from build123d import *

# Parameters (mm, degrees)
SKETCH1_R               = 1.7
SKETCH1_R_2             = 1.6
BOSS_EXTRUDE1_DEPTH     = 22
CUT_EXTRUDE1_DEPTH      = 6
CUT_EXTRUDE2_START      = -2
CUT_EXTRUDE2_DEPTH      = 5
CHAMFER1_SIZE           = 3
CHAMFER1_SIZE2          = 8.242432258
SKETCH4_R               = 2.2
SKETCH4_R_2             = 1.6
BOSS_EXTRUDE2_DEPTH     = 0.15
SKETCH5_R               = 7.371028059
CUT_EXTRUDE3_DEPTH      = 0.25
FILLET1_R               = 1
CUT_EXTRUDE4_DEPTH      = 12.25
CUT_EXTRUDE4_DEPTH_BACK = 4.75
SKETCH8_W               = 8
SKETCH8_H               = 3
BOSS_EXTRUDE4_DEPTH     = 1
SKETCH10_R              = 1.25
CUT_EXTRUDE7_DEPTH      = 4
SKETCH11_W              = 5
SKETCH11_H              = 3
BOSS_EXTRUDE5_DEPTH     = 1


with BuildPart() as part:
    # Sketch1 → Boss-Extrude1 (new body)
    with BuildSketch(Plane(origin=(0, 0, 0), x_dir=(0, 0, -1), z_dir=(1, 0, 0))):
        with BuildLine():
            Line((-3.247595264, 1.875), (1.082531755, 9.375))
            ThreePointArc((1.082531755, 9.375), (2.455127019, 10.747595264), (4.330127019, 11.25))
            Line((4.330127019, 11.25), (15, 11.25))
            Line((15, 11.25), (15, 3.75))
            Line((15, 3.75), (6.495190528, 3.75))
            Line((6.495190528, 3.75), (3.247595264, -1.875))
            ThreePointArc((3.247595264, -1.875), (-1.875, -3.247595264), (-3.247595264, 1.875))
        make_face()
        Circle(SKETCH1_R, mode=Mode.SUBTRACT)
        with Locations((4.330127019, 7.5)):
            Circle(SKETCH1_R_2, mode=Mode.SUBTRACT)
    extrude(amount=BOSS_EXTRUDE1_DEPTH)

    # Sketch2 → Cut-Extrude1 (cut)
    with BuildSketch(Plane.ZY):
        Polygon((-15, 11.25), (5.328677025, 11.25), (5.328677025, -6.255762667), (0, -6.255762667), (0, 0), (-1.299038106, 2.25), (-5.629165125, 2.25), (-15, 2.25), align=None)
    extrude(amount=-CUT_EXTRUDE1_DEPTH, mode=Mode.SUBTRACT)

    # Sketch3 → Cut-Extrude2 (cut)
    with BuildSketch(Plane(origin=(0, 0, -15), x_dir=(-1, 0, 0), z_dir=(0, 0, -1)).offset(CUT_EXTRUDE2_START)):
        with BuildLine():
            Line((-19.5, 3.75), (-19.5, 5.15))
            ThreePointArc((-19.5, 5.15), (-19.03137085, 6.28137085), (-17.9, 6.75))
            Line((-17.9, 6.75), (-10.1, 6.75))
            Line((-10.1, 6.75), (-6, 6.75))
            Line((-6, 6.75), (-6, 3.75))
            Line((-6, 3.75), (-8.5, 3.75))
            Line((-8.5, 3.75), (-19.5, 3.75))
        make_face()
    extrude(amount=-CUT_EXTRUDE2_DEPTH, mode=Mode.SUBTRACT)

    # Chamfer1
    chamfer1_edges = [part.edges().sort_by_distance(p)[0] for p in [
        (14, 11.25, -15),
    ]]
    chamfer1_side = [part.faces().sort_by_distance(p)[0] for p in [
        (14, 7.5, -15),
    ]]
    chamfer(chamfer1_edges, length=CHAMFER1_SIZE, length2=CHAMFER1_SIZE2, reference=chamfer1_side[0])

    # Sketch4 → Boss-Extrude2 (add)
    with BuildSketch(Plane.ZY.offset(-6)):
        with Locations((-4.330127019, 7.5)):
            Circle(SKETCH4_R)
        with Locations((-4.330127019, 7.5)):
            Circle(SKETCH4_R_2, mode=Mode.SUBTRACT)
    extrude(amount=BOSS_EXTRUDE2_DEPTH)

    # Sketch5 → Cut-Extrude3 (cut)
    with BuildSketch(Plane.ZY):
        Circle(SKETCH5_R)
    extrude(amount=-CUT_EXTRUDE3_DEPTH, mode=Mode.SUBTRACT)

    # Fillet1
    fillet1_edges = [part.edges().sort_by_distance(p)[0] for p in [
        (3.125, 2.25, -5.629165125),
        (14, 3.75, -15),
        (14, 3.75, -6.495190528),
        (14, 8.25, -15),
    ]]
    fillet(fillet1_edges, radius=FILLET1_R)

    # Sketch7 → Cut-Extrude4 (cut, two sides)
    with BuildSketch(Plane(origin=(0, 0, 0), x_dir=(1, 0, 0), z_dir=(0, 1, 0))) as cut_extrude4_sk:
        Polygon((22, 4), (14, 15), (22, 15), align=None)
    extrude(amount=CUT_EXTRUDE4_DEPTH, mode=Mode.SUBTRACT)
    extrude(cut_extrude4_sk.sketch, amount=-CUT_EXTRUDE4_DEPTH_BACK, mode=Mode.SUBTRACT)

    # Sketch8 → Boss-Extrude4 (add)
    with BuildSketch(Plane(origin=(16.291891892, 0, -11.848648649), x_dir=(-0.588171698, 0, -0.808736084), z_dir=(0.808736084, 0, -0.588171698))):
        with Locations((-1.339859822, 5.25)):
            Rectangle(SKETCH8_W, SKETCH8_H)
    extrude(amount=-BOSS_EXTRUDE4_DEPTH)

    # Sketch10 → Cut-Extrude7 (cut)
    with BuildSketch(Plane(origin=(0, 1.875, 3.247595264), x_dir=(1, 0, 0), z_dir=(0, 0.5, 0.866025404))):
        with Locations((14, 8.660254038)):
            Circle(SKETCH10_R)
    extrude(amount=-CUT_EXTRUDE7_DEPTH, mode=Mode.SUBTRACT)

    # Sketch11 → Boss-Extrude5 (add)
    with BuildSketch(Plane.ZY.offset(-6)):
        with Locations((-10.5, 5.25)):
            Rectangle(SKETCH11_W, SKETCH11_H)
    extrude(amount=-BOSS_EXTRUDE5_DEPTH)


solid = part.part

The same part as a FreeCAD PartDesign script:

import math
import FreeCAD as App
import Part
import Sketcher
from FreeCAD import Vector
Q = App.Units.Quantity


def edges_at(feature, points):
    """Names of the edges that pass closest to the given points."""
    edges = feature.Shape.Edges
    near = lambda p: min(range(len(edges)), key=lambda i: edges[i].distToShape(Part.Vertex(*p))[0])
    return sorted({f"Edge{near(p) + 1}" for p in points})


def add_polygon(sketch, points):
    """Adds a closed chain of lines whose ends are joined by coincident constraints."""
    first, n = sketch.GeometryCount, len(points)
    for a, b in zip(points, points[1:] + points[:1]):
        sketch.addGeometry(Part.LineSegment(App.Vector(*a, 0), App.Vector(*b, 0)), False)
    for i in range(n):
        sketch.addConstraint(Sketcher.Constraint("Coincident", first + i, 2, first + (i + 1) % n, 1))

doc = App.newDocument("Part")
params = doc.addObject("Spreadsheet::Sheet", "Params")
for row, (alias, value) in enumerate([
    ("sketch1_diameter", "3.4 mm"),
    ("sketch1_diameter2", "3.2 mm"),
    ("sketch1_radius", "3.75 mm"),
    ("sketch1_width", "7.5 mm"),
    ("pad1_length", "22 mm"),
    ("sketch2_width", "9 mm"),
    ("pocket1_length", "6 mm"),
    ("sketch3_radius", "1.6 mm"),
    ("sketch3_height", "3 mm"),
    ("sketch3_width", "13.5 mm"),
    ("pocket2_length", "5 mm"),
    ("chamfer_size", "3 mm"),
    ("chamfer_size2", "8.242432 mm"),
    ("sketch4_diameter", "4.4 mm"),
    ("sketch4_diameter2", "3.2 mm"),
    ("pad2_length", "0.15 mm"),
    ("pocket3_length", "0.25 mm"),
    ("fillet_radius", "1 mm"),
    ("sketch6_width", "8 mm"),
    ("sketch6_height", "11 mm"),
    ("sketch7_width", "8 mm"),
    ("sketch7_height", "3 mm"),
    ("pad3_length", "1 mm"),
    ("sketch8_diameter", "2.5 mm"),
    ("pocket5_length", "4 mm"),
    ("sketch9_width", "3 mm"),
    ("sketch9_height", "5 mm"),
    ("pad4_length", "1 mm"),
], start=1):
    params.set(f"A{row}", alias)
    params.set(f"B{row}", "=" + value)
    params.setAlias(f"B{row}", alias)

body = doc.addObject("PartDesign::Body", "Body")

# Sketch on YZ plane
sketch1 = body.newObject("Sketcher::SketchObject", "Sketch")
sketch1.AttachmentSupport = (doc.getObject("YZ_Plane"), [""])
sketch1.MapMode = "FlatFace"
sketch1.addGeometry(Part.LineSegment(Vector(9.375, -1.082532, 0), Vector(1.875, 3.247595, 0)), False)
sketch1.addGeometry(Part.ArcOfCircle(Part.Circle(Vector(0, 0, 0), Vector(0, 0, 1), 3.75), math.radians(60), math.radians(240)), False)
sketch1.addGeometry(Part.LineSegment(Vector(-1.875, -3.247595, 0), Vector(3.75, -6.495191, 0)), False)
sketch1.addGeometry(Part.LineSegment(Vector(3.75, -6.495191, 0), Vector(3.75, -15, 0)), False)
sketch1.addGeometry(Part.LineSegment(Vector(3.75, -15, 0), Vector(11.25, -15, 0)), False)
sketch1.addGeometry(Part.LineSegment(Vector(11.25, -15, 0), Vector(11.25, -4.330127, 0)), False)
sketch1.addGeometry(Part.ArcOfCircle(Part.Circle(Vector(7.5, -4.330127, 0), Vector(0, 0, 1), 3.75), math.radians(0), math.radians(60)), False)
sketch1.addGeometry(Part.Circle(Vector(0, 0, 0), Vector(0, 0, 1), 1.7), False)
sketch1.addGeometry(Part.Circle(Vector(7.5, -4.330127, 0), Vector(0, 0, 1), 1.6), False)
sketch1.addConstraint(Sketcher.Constraint("Tangent", 0, 2, 1, 1))
sketch1.addConstraint(Sketcher.Constraint("Tangent", 1, 2, 2, 1))
sketch1.addConstraint(Sketcher.Constraint("Coincident", 2, 2, 3, 1))
sketch1.addConstraint(Sketcher.Constraint("Coincident", 3, 2, 4, 1))
sketch1.addConstraint(Sketcher.Constraint("Coincident", 4, 2, 5, 1))
sketch1.addConstraint(Sketcher.Constraint("Tangent", 5, 2, 6, 1))
sketch1.addConstraint(Sketcher.Constraint("Tangent", 6, 2, 0, 1))
sketch1.addConstraint(Sketcher.Constraint("Vertical", 3))
sketch1.addConstraint(Sketcher.Constraint("Horizontal", 4))
sketch1.addConstraint(Sketcher.Constraint("Vertical", 5))
sketch1.addConstraint(Sketcher.Constraint("Coincident", 1, 3, -1, 1))
sketch1.addConstraint(Sketcher.Constraint("Coincident", 7, 3, -1, 1))
sketch1.addConstraint(Sketcher.Constraint("Coincident", 8, 3, 6, 3))
sketch1.addConstraint(Sketcher.Constraint("Equal", 1, 6))
sketch1.addConstraint(Sketcher.Constraint("Parallel", 0, 2))
sketch1.addConstraint(Sketcher.Constraint("Diameter", 7, Q("3.4 mm")))
sketch1.addConstraint(Sketcher.Constraint("Diameter", 8, Q("3.2 mm")))
sketch1.addConstraint(Sketcher.Constraint("Angle", 0, Q("150 deg")))
sketch1.addConstraint(Sketcher.Constraint("Radius", 1, Q("3.75 mm")))
sketch1.addConstraint(Sketcher.Constraint("DistanceX", 4, 1, 4, 2, Q("7.5 mm")))
sketch1.addConstraint(Sketcher.Constraint("DistanceY", 3, 2, -1, 1, Q("15 mm")))
sketch1.addConstraint(Sketcher.Constraint("DistanceX", -1, 1, 6, 3, Q("7.5 mm")))
sketch1.setExpression("Constraints[15]", "Params.sketch1_diameter")
sketch1.setExpression("Constraints[16]", "Params.sketch1_diameter2")
sketch1.setExpression("Constraints[18]", "Params.sketch1_radius")
sketch1.setExpression("Constraints[19]", "Params.sketch1_width")
pad1 = body.newObject("PartDesign::Pad", "Pad")
pad1.Profile = sketch1
pad1.setExpression("Length", "Params.pad1_length")

# Sketch on YZ plane
sketch2 = body.newObject("Sketcher::SketchObject", "Sketch001")
sketch2.AttachmentSupport = (doc.getObject("YZ_Plane"), [""])
sketch2.MapMode = "FlatFace"
add_polygon(sketch2, [(11.25, 5.328677), (11.25, -15), (2.25, -15), (2.25, -1.299038), (0, 0), (-6.255763, 0), (-6.255763, 5.328677)])  # lines 0-6
sketch2.addConstraint(Sketcher.Constraint("Vertical", 0))
sketch2.addConstraint(Sketcher.Constraint("Horizontal", 1))
sketch2.addConstraint(Sketcher.Constraint("Vertical", 2))
sketch2.addConstraint(Sketcher.Constraint("Horizontal", 4))
sketch2.addConstraint(Sketcher.Constraint("Vertical", 5))
sketch2.addConstraint(Sketcher.Constraint("Horizontal", 6))
sketch2.addConstraint(Sketcher.Constraint("Coincident", 3, 2, -1, 1))
sketch2.addConstraint(Sketcher.Constraint("DistanceX", 1, 2, 1, 1, Q("9 mm")))
sketch2.addConstraint(Sketcher.Constraint("Angle", 3, Q("150 deg")))
sketch2.addConstraint(Sketcher.Constraint("DistanceY", 0, 2, -1, 1, Q("15 mm")))
sketch2.addConstraint(Sketcher.Constraint("DistanceX", -1, 1, 0, 2, Q("11.25 mm")))
sketch2.addConstraint(Sketcher.Constraint("DistanceX", 4, 2, 4, 1, Q("6.255763 mm")))
sketch2.addConstraint(Sketcher.Constraint("DistanceY", 0, 2, 0, 1, Q("20.328677 mm")))
sketch2.setExpression("Constraints[14]", "Params.sketch2_width")
pocket1 = body.newObject("PartDesign::Pocket", "Pocket")
pocket1.Profile = sketch2
pocket1.setExpression("Length", "Params.pocket1_length")
pocket1.Reversed = True

# Sketch on XY plane
sketch3 = body.newObject("Sketcher::SketchObject", "Sketch002")
sketch3.AttachmentSupport = (doc.getObject("XY_Plane"), [""])
sketch3.MapMode = "FlatFace"
sketch3.AttachmentOffset = App.Placement(Vector(0, 0, -13), App.Rotation())
sketch3.addGeometry(Part.LineSegment(Vector(19.5, 5.15, 0), Vector(19.5, 3.75, 0)), False)
sketch3.addGeometry(Part.LineSegment(Vector(19.5, 3.75, 0), Vector(6, 3.75, 0)), False)
sketch3.addGeometry(Part.LineSegment(Vector(6, 3.75, 0), Vector(6, 6.75, 0)), False)
sketch3.addGeometry(Part.LineSegment(Vector(6, 6.75, 0), Vector(17.9, 6.75, 0)), False)
sketch3.addGeometry(Part.ArcOfCircle(Part.Circle(Vector(17.9, 5.15, 0), Vector(0, 0, 1), 1.6), math.radians(0), math.radians(90)), False)
sketch3.addConstraint(Sketcher.Constraint("Coincident", 0, 2, 1, 1))
sketch3.addConstraint(Sketcher.Constraint("Coincident", 1, 2, 2, 1))
sketch3.addConstraint(Sketcher.Constraint("Coincident", 2, 2, 3, 1))
sketch3.addConstraint(Sketcher.Constraint("Tangent", 3, 2, 4, 2))
sketch3.addConstraint(Sketcher.Constraint("Tangent", 4, 1, 0, 1))
sketch3.addConstraint(Sketcher.Constraint("Vertical", 0))
sketch3.addConstraint(Sketcher.Constraint("Horizontal", 1))
sketch3.addConstraint(Sketcher.Constraint("Vertical", 2))
sketch3.addConstraint(Sketcher.Constraint("Horizontal", 3))
sketch3.addConstraint(Sketcher.Constraint("Radius", 4, Q("1.6 mm")))
sketch3.addConstraint(Sketcher.Constraint("DistanceY", 2, 1, 2, 2, Q("3 mm")))
sketch3.addConstraint(Sketcher.Constraint("DistanceX", 1, 2, 1, 1, Q("13.5 mm")))
sketch3.addConstraint(Sketcher.Constraint("DistanceX", -1, 1, 1, 2, Q("6 mm")))
sketch3.addConstraint(Sketcher.Constraint("DistanceY", -1, 1, 4, 3, Q("5.15 mm")))
sketch3.setExpression("Constraints[9]", "Params.sketch3_radius")
sketch3.setExpression("Constraints[10]", "Params.sketch3_height")
sketch3.setExpression("Constraints[11]", "Params.sketch3_width")
pocket2 = body.newObject("PartDesign::Pocket", "Pocket001")
pocket2.Profile = sketch3
pocket2.setExpression("Length", "Params.pocket2_length")
pocket2.Reversed = True
doc.recompute()

chamfer = body.newObject("PartDesign::Chamfer", "Chamfer")
chamfer.Base = (pocket2, edges_at(pocket2, [(14, 11.25, -15)]))
chamfer.ChamferType = "Two distances"
chamfer.setExpression("Size", "Params.chamfer_size")
chamfer.setExpression("Size2", "Params.chamfer_size2")
chamfer.FlipDirection = True

# Sketch on YZ plane
sketch4 = body.newObject("Sketcher::SketchObject", "Sketch003")
sketch4.AttachmentSupport = (doc.getObject("YZ_Plane"), [""])
sketch4.MapMode = "FlatFace"
sketch4.AttachmentOffset = App.Placement(Vector(0, 0, 6), App.Rotation())
sketch4.addGeometry(Part.Circle(Vector(7.5, -4.330127, 0), Vector(0, 0, 1), 2.2), False)
sketch4.addGeometry(Part.Circle(Vector(7.5, -4.330127, 0), Vector(0, 0, 1), 1.6), False)
sketch4.addConstraint(Sketcher.Constraint("Coincident", 1, 3, 0, 3))
sketch4.addConstraint(Sketcher.Constraint("Diameter", 0, Q("4.4 mm")))
sketch4.addConstraint(Sketcher.Constraint("Diameter", 1, Q("3.2 mm")))
sketch4.addConstraint(Sketcher.Constraint("DistanceX", -1, 1, 0, 3, Q("7.5 mm")))
sketch4.addConstraint(Sketcher.Constraint("DistanceY", 0, 3, -1, 1, Q("4.330127 mm")))
sketch4.setExpression("Constraints[1]", "Params.sketch4_diameter")
sketch4.setExpression("Constraints[2]", "Params.sketch4_diameter2")
pad2 = body.newObject("PartDesign::Pad", "Pad001")
pad2.Profile = sketch4
pad2.setExpression("Length", "Params.pad2_length")
pad2.Reversed = True

# Sketch on YZ plane
sketch5 = body.newObject("Sketcher::SketchObject", "Sketch004")
sketch5.AttachmentSupport = (doc.getObject("YZ_Plane"), [""])
sketch5.MapMode = "FlatFace"
sketch5.addGeometry(Part.Circle(Vector(0, 0, 0), Vector(0, 0, 1), 7.371028), False)
sketch5.addConstraint(Sketcher.Constraint("Coincident", 0, 3, -1, 1))
sketch5.addConstraint(Sketcher.Constraint("Diameter", 0, Q("14.742056 mm")))
pocket3 = body.newObject("PartDesign::Pocket", "Pocket002")
pocket3.Profile = sketch5
pocket3.setExpression("Length", "Params.pocket3_length")
pocket3.Reversed = True
doc.recompute()

fillet = body.newObject("PartDesign::Fillet", "Fillet")
fillet.Base = (pocket3, edges_at(pocket3, [
    (3.125, 2.25, -5.629),
    (14, 3.75, -15),
    (14, 3.75, -6.495),
    (14, 8.25, -15),
]))
fillet.setExpression("Radius", "Params.fillet_radius")

# Sketch on XZ plane
sketch6 = body.newObject("Sketcher::SketchObject", "Sketch005")
sketch6.AttachmentSupport = (doc.getObject("XZ_Plane"), [""])
sketch6.MapMode = "FlatFace"
add_polygon(sketch6, [(14, -15), (22, -4), (22, -15)])  # lines 0-2
sketch6.addConstraint(Sketcher.Constraint("Vertical", 1))
sketch6.addConstraint(Sketcher.Constraint("Horizontal", 2))
sketch6.addConstraint(Sketcher.Constraint("DistanceX", 2, 2, 2, 1, Q("8 mm")))
sketch6.addConstraint(Sketcher.Constraint("DistanceY", 1, 2, 1, 1, Q("11 mm")))
sketch6.addConstraint(Sketcher.Constraint("DistanceX", -1, 1, 0, 2, Q("22 mm")))
sketch6.addConstraint(Sketcher.Constraint("DistanceY", 0, 2, -1, 1, Q("4 mm")))
sketch6.setExpression("Constraints[5]", "Params.sketch6_width")
sketch6.setExpression("Constraints[6]", "Params.sketch6_height")
pocket4 = body.newObject("PartDesign::Pocket", "Pocket003")
pocket4.Profile = sketch6
pocket4.Type = "ThroughAll"
pocket4.Midplane = True

# Sketch on an angled plane
sketch7 = body.newObject("Sketcher::SketchObject", "Sketch006")
sketch7.Placement = App.Placement(Vector(16.291892, 0, -11.848649), App.Rotation(Vector(-0.588171698, 0, -0.808736084), Vector(0, 1, 0), Vector(0.808736084, 0, -0.588171698), "ZXY"))
add_polygon(sketch7, [(-5.33986, 6.75), (-5.33986, 3.75), (2.66014, 3.75), (2.66014, 6.75)])  # lines 0-3
sketch7.addConstraint(Sketcher.Constraint("Vertical", 0))
sketch7.addConstraint(Sketcher.Constraint("Horizontal", 1))
sketch7.addConstraint(Sketcher.Constraint("Vertical", 2))
sketch7.addConstraint(Sketcher.Constraint("Horizontal", 3))
sketch7.addConstraint(Sketcher.Constraint("DistanceX", 1, 1, 1, 2, Q("8 mm")))
sketch7.addConstraint(Sketcher.Constraint("DistanceY", 0, 2, 0, 1, Q("3 mm")))
sketch7.addConstraint(Sketcher.Constraint("DistanceY", -1, 1, 0, 2, Q("3.75 mm")))
sketch7.addConstraint(Sketcher.Constraint("DistanceX", 0, 2, -1, 1, Q("5.33986 mm")))
sketch7.setExpression("Constraints[8]", "Params.sketch7_width")
sketch7.setExpression("Constraints[9]", "Params.sketch7_height")
pad3 = body.newObject("PartDesign::Pad", "Pad002")
pad3.Profile = sketch7
pad3.setExpression("Length", "Params.pad3_length")
pad3.Reversed = True

# Sketch on an angled plane
sketch8 = body.newObject("Sketcher::SketchObject", "Sketch007")
sketch8.Placement = App.Placement(Vector(0, 1.875, 3.247595), App.Rotation(Vector(1, 0, 0), Vector(0, 0.866025404, -0.5), Vector(0, 0.5, 0.866025404), "ZXY"))
sketch8.addGeometry(Part.Circle(Vector(14, 8.660254, 0), Vector(0, 0, 1), 1.25), False)
sketch8.addConstraint(Sketcher.Constraint("Diameter", 0, Q("2.5 mm")))
sketch8.addConstraint(Sketcher.Constraint("DistanceX", -1, 1, 0, 3, Q("14 mm")))
sketch8.addConstraint(Sketcher.Constraint("DistanceY", -1, 1, 0, 3, Q("8.660254 mm")))
sketch8.setExpression("Constraints[0]", "Params.sketch8_diameter")
pocket5 = body.newObject("PartDesign::Pocket", "Pocket004")
pocket5.Profile = sketch8
pocket5.setExpression("Length", "Params.pocket5_length")

# Sketch on YZ plane
sketch9 = body.newObject("Sketcher::SketchObject", "Sketch008")
sketch9.AttachmentSupport = (doc.getObject("YZ_Plane"), [""])
sketch9.MapMode = "FlatFace"
sketch9.AttachmentOffset = App.Placement(Vector(0, 0, 6), App.Rotation())
add_polygon(sketch9, [(6.75, -13), (3.75, -13), (3.75, -8), (6.75, -8)])  # lines 0-3
sketch9.addConstraint(Sketcher.Constraint("Horizontal", 0))
sketch9.addConstraint(Sketcher.Constraint("Vertical", 1))
sketch9.addConstraint(Sketcher.Constraint("Horizontal", 2))
sketch9.addConstraint(Sketcher.Constraint("Vertical", 3))
sketch9.addConstraint(Sketcher.Constraint("DistanceX", 0, 2, 0, 1, Q("3 mm")))
sketch9.addConstraint(Sketcher.Constraint("DistanceY", 1, 1, 1, 2, Q("5 mm")))
sketch9.addConstraint(Sketcher.Constraint("DistanceY", 0, 2, -1, 1, Q("13 mm")))
sketch9.addConstraint(Sketcher.Constraint("DistanceX", -1, 1, 0, 2, Q("3.75 mm")))
sketch9.setExpression("Constraints[8]", "Params.sketch9_width")
sketch9.setExpression("Constraints[9]", "Params.sketch9_height")
pad4 = body.newObject("PartDesign::Pad", "Pad003")
pad4.Profile = sketch9
pad4.setExpression("Length", "Params.pad4_length")

doc.recompute()
